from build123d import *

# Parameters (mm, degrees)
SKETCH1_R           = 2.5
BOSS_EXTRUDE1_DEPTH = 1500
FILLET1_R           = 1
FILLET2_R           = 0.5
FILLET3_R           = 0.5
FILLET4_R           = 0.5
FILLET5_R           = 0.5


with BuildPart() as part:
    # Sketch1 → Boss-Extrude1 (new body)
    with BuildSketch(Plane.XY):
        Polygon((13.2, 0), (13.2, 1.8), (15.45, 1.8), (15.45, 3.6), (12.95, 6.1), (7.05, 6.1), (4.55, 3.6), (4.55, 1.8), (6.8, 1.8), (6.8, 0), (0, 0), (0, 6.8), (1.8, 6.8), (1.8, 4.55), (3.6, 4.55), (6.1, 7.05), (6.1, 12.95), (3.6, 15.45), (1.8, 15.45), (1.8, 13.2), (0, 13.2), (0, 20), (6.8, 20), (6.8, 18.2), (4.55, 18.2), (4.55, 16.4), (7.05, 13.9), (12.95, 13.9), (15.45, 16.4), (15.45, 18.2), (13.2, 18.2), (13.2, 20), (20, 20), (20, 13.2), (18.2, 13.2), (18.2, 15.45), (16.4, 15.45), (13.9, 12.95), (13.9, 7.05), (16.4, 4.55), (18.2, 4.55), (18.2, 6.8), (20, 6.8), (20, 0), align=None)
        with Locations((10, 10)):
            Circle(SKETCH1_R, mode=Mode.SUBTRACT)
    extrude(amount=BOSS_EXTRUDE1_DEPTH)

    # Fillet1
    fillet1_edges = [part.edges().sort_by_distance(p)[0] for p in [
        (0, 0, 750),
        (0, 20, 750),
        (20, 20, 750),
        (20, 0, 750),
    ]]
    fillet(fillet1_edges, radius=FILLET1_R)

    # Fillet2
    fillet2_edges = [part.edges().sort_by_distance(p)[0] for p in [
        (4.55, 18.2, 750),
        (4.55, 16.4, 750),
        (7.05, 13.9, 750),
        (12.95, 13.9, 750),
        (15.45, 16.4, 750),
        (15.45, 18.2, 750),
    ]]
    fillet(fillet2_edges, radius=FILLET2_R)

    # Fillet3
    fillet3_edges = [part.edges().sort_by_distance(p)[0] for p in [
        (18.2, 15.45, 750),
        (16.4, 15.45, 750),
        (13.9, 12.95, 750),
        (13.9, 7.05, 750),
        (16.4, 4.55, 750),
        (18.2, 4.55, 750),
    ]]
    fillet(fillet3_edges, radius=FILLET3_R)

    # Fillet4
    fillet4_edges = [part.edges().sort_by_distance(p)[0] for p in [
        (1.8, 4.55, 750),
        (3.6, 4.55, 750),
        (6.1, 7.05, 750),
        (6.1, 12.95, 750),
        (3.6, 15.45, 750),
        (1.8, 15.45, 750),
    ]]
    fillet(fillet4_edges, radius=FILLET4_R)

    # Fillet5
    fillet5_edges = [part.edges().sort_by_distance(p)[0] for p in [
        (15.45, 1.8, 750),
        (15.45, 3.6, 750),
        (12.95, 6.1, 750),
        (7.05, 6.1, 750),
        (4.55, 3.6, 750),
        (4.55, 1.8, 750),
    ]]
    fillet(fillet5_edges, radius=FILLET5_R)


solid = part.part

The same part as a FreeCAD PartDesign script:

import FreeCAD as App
import Part
import Sketcher


def edges_at(feature, points):
    """Names of the edges that pass closest to the given points."""
    edges = feature.Shape.Edges
    near = lambda p: min(range(len(edges)), key=lambda i: edges[i].distToShape(Part.Vertex(*p))[0])
    return sorted({f"Edge{near(p) + 1}" for p in points})

doc = App.newDocument("Part")
body = doc.addObject("PartDesign::Body", "Body")

sketch1 = body.newObject("Sketcher::SketchObject", "Sketch")
sketch1.AttachmentSupport = (doc.getObject("XY_Plane"), [""])
sketch1.MapMode = "FlatFace"
sketch1.addGeometry([
    Part.LineSegment(App.Vector(13.2, 1.8, 0), App.Vector(13.2, 0, 0)),
    Part.LineSegment(App.Vector(13.2, 0, 0), App.Vector(20, 0, 0)),
    Part.LineSegment(App.Vector(20, 0, 0), App.Vector(20, 6.8, 0)),
    Part.LineSegment(App.Vector(20, 6.8, 0), App.Vector(18.2, 6.8, 0)),
    Part.LineSegment(App.Vector(18.2, 6.8, 0), App.Vector(18.2, 4.5, 0)),
    Part.LineSegment(App.Vector(18.2, 4.5, 0), App.Vector(16.4, 4.5, 0)),
    Part.LineSegment(App.Vector(16.4, 4.5, 0), App.Vector(13.9, 7, 0)),
    Part.LineSegment(App.Vector(13.9, 7, 0), App.Vector(13.9, 12.9, 0)),
    Part.LineSegment(App.Vector(13.9, 12.9, 0), App.Vector(16.4, 15.4, 0)),
    Part.LineSegment(App.Vector(16.4, 15.4, 0), App.Vector(18.2, 15.4, 0)),
    Part.LineSegment(App.Vector(18.2, 15.4, 0), App.Vector(18.2, 13.2, 0)),
    Part.LineSegment(App.Vector(18.2, 13.2, 0), App.Vector(20, 13.2, 0)),
    Part.LineSegment(App.Vector(20, 13.2, 0), App.Vector(20, 20, 0)),
    Part.LineSegment(App.Vector(20, 20, 0), App.Vector(13.2, 20, 0)),
    Part.LineSegment(App.Vector(13.2, 20, 0), App.Vector(13.2, 18.2, 0)),
    Part.LineSegment(App.Vector(13.2, 18.2, 0), App.Vector(15.4, 18.2, 0)),
    Part.LineSegment(App.Vector(15.4, 18.2, 0), App.Vector(15.4, 16.4, 0)),
    Part.LineSegment(App.Vector(15.4, 16.4, 0), App.Vector(12.9, 13.9, 0)),
    Part.LineSegment(App.Vector(12.9, 13.9, 0), App.Vector(7, 13.9, 0)),
    Part.LineSegment(App.Vector(7, 13.9, 0), App.Vector(4.5, 16.4, 0)),
    Part.LineSegment(App.Vector(4.5, 16.4, 0), App.Vector(4.5, 18.2, 0)),
    Part.LineSegment(App.Vector(4.5, 18.2, 0), App.Vector(6.8, 18.2, 0)),
    Part.LineSegment(App.Vector(6.8, 18.2, 0), App.Vector(6.8, 20, 0)),
    Part.LineSegment(App.Vector(6.8, 20, 0), App.Vector(0, 20, 0)),
    Part.LineSegment(App.Vector(0, 20, 0), App.Vector(0, 13.2, 0)),
    Part.LineSegment(App.Vector(0, 13.2, 0), App.Vector(1.8, 13.2, 0)),
    Part.LineSegment(App.Vector(1.8, 13.2, 0), App.Vector(1.8, 15.4, 0)),
    Part.LineSegment(App.Vector(1.8, 15.4, 0), App.Vector(3.6, 15.4, 0)),
    Part.LineSegment(App.Vector(3.6, 15.4, 0), App.Vector(6.1, 12.9, 0)),
    Part.LineSegment(App.Vector(6.1, 12.9, 0), App.Vector(6.1, 7, 0)),
    Part.LineSegment(App.Vector(6.1, 7, 0), App.Vector(3.6, 4.5, 0)),
    Part.LineSegment(App.Vector(3.6, 4.5, 0), App.Vector(1.8, 4.5, 0)),
    Part.LineSegment(App.Vector(1.8, 4.5, 0), App.Vector(1.8, 6.8, 0)),
    Part.LineSegment(App.Vector(1.8, 6.8, 0), App.Vector(0, 6.8, 0)),
    Part.LineSegment(App.Vector(0, 6.8, 0), App.Vector(0, 0, 0)),
    Part.LineSegment(App.Vector(0, 0, 0), App.Vector(6.8, 0, 0)),
    Part.LineSegment(App.Vector(6.8, 0, 0), App.Vector(6.8, 1.8, 0)),
    Part.LineSegment(App.Vector(6.8, 1.8, 0), App.Vector(4.5, 1.8, 0)),
    Part.LineSegment(App.Vector(4.5, 1.8, 0), App.Vector(4.5, 3.6, 0)),
    Part.LineSegment(App.Vector(4.5, 3.6, 0), App.Vector(7, 6.1, 0)),
    Part.LineSegment(App.Vector(7, 6.1, 0), App.Vector(12.9, 6.1, 0)),
    Part.LineSegment(App.Vector(12.9, 6.1, 0), App.Vector(15.4, 3.6, 0)),
    Part.LineSegment(App.Vector(15.4, 3.6, 0), App.Vector(15.4, 1.8, 0)),
    Part.LineSegment(App.Vector(15.4, 1.8, 0), App.Vector(13.2, 1.8, 0)),
    Part.Circle(App.Vector(10, 10, 0), App.Vector(0, 0, 1), 2.5),
], False)
sketch1.addConstraint([
    Sketcher.Constraint("Coincident", 0, 2, 1, 1),
    Sketcher.Constraint("Coincident", 1, 2, 2, 1),
    Sketcher.Constraint("Coincident", 2, 2, 3, 1),
    Sketcher.Constraint("Coincident", 3, 2, 4, 1),
    Sketcher.Constraint("Coincident", 4, 2, 5, 1),
    Sketcher.Constraint("Coincident", 5, 2, 6, 1),
    Sketcher.Constraint("Coincident", 6, 2, 7, 1),
    Sketcher.Constraint("Coincident", 7, 2, 8, 1),
    Sketcher.Constraint("Coincident", 8, 2, 9, 1),
    Sketcher.Constraint("Coincident", 9, 2, 10, 1),
    Sketcher.Constraint("Coincident", 10, 2, 11, 1),
    Sketcher.Constraint("Coincident", 11, 2, 12, 1),
    Sketcher.Constraint("Coincident", 12, 2, 13, 1),
    Sketcher.Constraint("Coincident", 13, 2, 14, 1),
    Sketcher.Constraint("Coincident", 14, 2, 15, 1),
    Sketcher.Constraint("Coincident", 15, 2, 16, 1),
    Sketcher.Constraint("Coincident", 16, 2, 17, 1),
    Sketcher.Constraint("Coincident", 17, 2, 18, 1),
    Sketcher.Constraint("Coincident", 18, 2, 19, 1),
    Sketcher.Constraint("Coincident", 19, 2, 20, 1),
    Sketcher.Constraint("Coincident", 20, 2, 21, 1),
    Sketcher.Constraint("Coincident", 21, 2, 22, 1),
    Sketcher.Constraint("Coincident", 22, 2, 23, 1),
    Sketcher.Constraint("Coincident", 23, 2, 24, 1),
    Sketcher.Constraint("Coincident", 24, 2, 25, 1),
    Sketcher.Constraint("Coincident", 25, 2, 26, 1),
    Sketcher.Constraint("Coincident", 26, 2, 27, 1),
    Sketcher.Constraint("Coincident", 27, 2, 28, 1),
    Sketcher.Constraint("Coincident", 28, 2, 29, 1),
    Sketcher.Constraint("Coincident", 29, 2, 30, 1),
    Sketcher.Constraint("Coincident", 30, 2, 31, 1),
    Sketcher.Constraint("Coincident", 31, 2, 32, 1),
    Sketcher.Constraint("Coincident", 32, 2, 33, 1),
    Sketcher.Constraint("Coincident", 33, 2, 34, 1),
    Sketcher.Constraint("Coincident", 34, 2, 35, 1),
    Sketcher.Constraint("Coincident", 35, 2, 36, 1),
    Sketcher.Constraint("Coincident", 36, 2, 37, 1),
    Sketcher.Constraint("Coincident", 37, 2, 38, 1),
    Sketcher.Constraint("Coincident", 38, 2, 39, 1),
    Sketcher.Constraint("Coincident", 39, 2, 40, 1),
    Sketcher.Constraint("Coincident", 40, 2, 41, 1),
    Sketcher.Constraint("Coincident", 41, 2, 42, 1),
    Sketcher.Constraint("Coincident", 42, 2, 43, 1),
    Sketcher.Constraint("Coincident", 43, 2, 0, 1),
    Sketcher.Constraint("Vertical", 0),
    Sketcher.Constraint("Horizontal", 1),
    Sketcher.Constraint("Vertical", 2),
    Sketcher.Constraint("Horizontal", 3),
    Sketcher.Constraint("Vertical", 4),
    Sketcher.Constraint("Horizontal", 5),
    Sketcher.Constraint("Vertical", 7),
    Sketcher.Constraint("Horizontal", 9),
    Sketcher.Constraint("Vertical", 10),
    Sketcher.Constraint("Horizontal", 11),
    Sketcher.Constraint("Vertical", 12),
    Sketcher.Constraint("Horizontal", 13),
    Sketcher.Constraint("Vertical", 14),
    Sketcher.Constraint("Horizontal", 15),
    Sketcher.Constraint("Vertical", 16),
    Sketcher.Constraint("Horizontal", 18),
    Sketcher.Constraint("Vertical", 20),
    Sketcher.Constraint("Horizontal", 21),
    Sketcher.Constraint("Vertical", 22),
    Sketcher.Constraint("Horizontal", 23),
    Sketcher.Constraint("Vertical", 24),
    Sketcher.Constraint("Horizontal", 25),
    Sketcher.Constraint("Vertical", 26),
    Sketcher.Constraint("Horizontal", 27),
    Sketcher.Constraint("Vertical", 29),
    Sketcher.Constraint("Horizontal", 31),
    Sketcher.Constraint("Vertical", 32),
    Sketcher.Constraint("Horizontal", 33),
    Sketcher.Constraint("Vertical", 34),
    Sketcher.Constraint("Horizontal", 35),
    Sketcher.Constraint("Vertical", 36),
    Sketcher.Constraint("Horizontal", 37),
    Sketcher.Constraint("Vertical", 38),
    Sketcher.Constraint("Horizontal", 40),
    Sketcher.Constraint("Vertical", 42),
    Sketcher.Constraint("Horizontal", 43),
    Sketcher.Constraint("Coincident", 34, 2, -1, 1),
    Sketcher.Constraint("PointOnObject", 0, 2, -1),
    Sketcher.Constraint("PointOnObject", 23, 2, -2),
    Sketcher.Constraint("Perpendicular", 6, 8),
    Sketcher.Constraint("Parallel", 8, 17),
    Sketcher.Constraint("Perpendicular", 17, 19),
    Sketcher.Constraint("Parallel", 19, 28),
    Sketcher.Constraint("Perpendicular", 28, 30),
    Sketcher.Constraint("Parallel", 30, 39),
    Sketcher.Constraint("Perpendicular", 39, 41),
    Sketcher.Constraint("Horizontal", 16, 2, 19, 2),
    Sketcher.Constraint("Horizontal", 15, 2, 20, 2),
    Sketcher.Constraint("Horizontal", 13, 2, 22, 2),
    Sketcher.Constraint("Horizontal", 11, 2, 24, 2),
    Sketcher.Constraint("Horizontal", 9, 2, 26, 2),
    Sketcher.Constraint("Horizontal", 7, 2, 28, 2),
    Sketcher.Constraint("Horizontal", 6, 2, 29, 2),
    Sketcher.Constraint("Horizontal", 5, 2, 30, 2),
    Sketcher.Constraint("Horizontal", 3, 2, 32, 2),
    Sketcher.Constraint("Horizontal", 38, 2, 41, 2),
    Sketcher.Constraint("Horizontal", 37, 2, 42, 2),
    Sketcher.Constraint("Vertical", 5, 2, 8, 2),
    Sketcher.Constraint("Vertical", 4, 2, 9, 2),
    Sketcher.Constraint("Vertical", 2, 2, 11, 2),
    Sketcher.Constraint("Vertical", 0, 2, 13, 2),
    Sketcher.Constraint("Vertical", 27, 2, 30, 2),
    Sketcher.Constraint("Vertical", 26, 2, 31, 2),
    Sketcher.Constraint("Vertical", 22, 2, 35, 2),
    Sketcher.Constraint("Vertical", 20, 2, 37, 2),
    Sketcher.Constraint("Vertical", 18, 2, 39, 2),
    Sketcher.Constraint("Vertical", 17, 2, 40, 2),
    Sketcher.Constraint("Equal", 3, 5),
    Sketcher.Constraint("Equal", 15, 21),
    Sketcher.Constraint("Equal", 13, 23),
    Sketcher.Constraint("Equal", 11, 25),
    Sketcher.Constraint("Equal", 25, 27),
    Sketcher.Constraint("Equal", 33, 0),
    Sketcher.Constraint("Equal", 35, 2),
    Sketcher.Constraint("Equal", 43, 4),
    Sketcher.Constraint("Equal", 40, 7),
    Sketcher.Constraint("Equal", 4, 10),
    Sketcher.Constraint("Equal", 2, 12),
    Sketcher.Constraint("Equal", 0, 14),
    Sketcher.Constraint("Equal", 14, 16),
    Sketcher.Constraint("Equal", 36, 38),
    Sketcher.Constraint("Equal", 8, 17),
    Sketcher.Constraint("Diameter", 44, 5.0),
    Sketcher.Constraint("DistanceX", 1, 1, 1, 2, 6.8),
    Sketcher.Constraint("DistanceX", 3, 2, 3, 1, 1.8),
    Sketcher.Constraint("DistanceX", 18, 2, 18, 1, 5.9),
    Sketcher.Constraint("DistanceX", -1, 1, 44, 3, 10.0),
    Sketcher.Constraint("DistanceY", -1, 1, 44, 3, 10.0),
    Sketcher.Constraint("DistanceX", -1, 1, 1, 2, 20.0),
    Sketcher.Constraint("DistanceX", 15, 1, 15, 2, 2.25),
])
pad1 = body.newObject("PartDesign::Pad", "Pad")
pad1.Profile = sketch1
pad1.Length = 1500
doc.recompute()

fillet = body.newObject("PartDesign::Fillet", "Fillet")
fillet.Base = (pad1, edges_at(pad1, [
    (0, 0, 750),
    (0, 20, 750),
    (20, 20, 750),
    (20, 0, 750),
]))
fillet.Radius = 1
doc.recompute()

fillet2 = body.newObject("PartDesign::Fillet", "Fillet001")
fillet2.Base = (fillet, edges_at(fillet, [
    (4.55, 18.2, 750),
    (4.55, 16.4, 750),
    (7.05, 13.9, 750),
    (12.95, 13.9, 750),
    (15.45, 16.4, 750),
    (15.45, 18.2, 750),
]))
fillet2.Radius = 0.5
doc.recompute()

fillet3 = body.newObject("PartDesign::Fillet", "Fillet002")
fillet3.Base = (fillet2, edges_at(fillet2, [
    (18.2, 15.45, 750),
    (16.4, 15.45, 750),
    (13.9, 12.95, 750),
    (13.9, 7.05, 750),
    (16.4, 4.55, 750),
    (18.2, 4.55, 750),
]))
fillet3.Radius = 0.5
doc.recompute()

fillet4 = body.newObject("PartDesign::Fillet", "Fillet003")
fillet4.Base = (fillet3, edges_at(fillet3, [
    (1.8, 4.55, 750),
    (3.6, 4.55, 750),
    (6.1, 7.05, 750),
    (6.1, 12.95, 750),
    (3.6, 15.45, 750),
    (1.8, 15.45, 750),
]))
fillet4.Radius = 0.5
doc.recompute()

fillet5 = body.newObject("PartDesign::Fillet", "Fillet004")
fillet5.Base = (fillet4, edges_at(fillet4, [
    (15.45, 1.8, 750),
    (15.45, 3.6, 750),
    (12.95, 6.1, 750),
    (7.05, 6.1, 750),
    (4.55, 3.6, 750),
    (4.55, 1.8, 750),
]))
fillet5.Radius = 0.5

doc.recompute()
